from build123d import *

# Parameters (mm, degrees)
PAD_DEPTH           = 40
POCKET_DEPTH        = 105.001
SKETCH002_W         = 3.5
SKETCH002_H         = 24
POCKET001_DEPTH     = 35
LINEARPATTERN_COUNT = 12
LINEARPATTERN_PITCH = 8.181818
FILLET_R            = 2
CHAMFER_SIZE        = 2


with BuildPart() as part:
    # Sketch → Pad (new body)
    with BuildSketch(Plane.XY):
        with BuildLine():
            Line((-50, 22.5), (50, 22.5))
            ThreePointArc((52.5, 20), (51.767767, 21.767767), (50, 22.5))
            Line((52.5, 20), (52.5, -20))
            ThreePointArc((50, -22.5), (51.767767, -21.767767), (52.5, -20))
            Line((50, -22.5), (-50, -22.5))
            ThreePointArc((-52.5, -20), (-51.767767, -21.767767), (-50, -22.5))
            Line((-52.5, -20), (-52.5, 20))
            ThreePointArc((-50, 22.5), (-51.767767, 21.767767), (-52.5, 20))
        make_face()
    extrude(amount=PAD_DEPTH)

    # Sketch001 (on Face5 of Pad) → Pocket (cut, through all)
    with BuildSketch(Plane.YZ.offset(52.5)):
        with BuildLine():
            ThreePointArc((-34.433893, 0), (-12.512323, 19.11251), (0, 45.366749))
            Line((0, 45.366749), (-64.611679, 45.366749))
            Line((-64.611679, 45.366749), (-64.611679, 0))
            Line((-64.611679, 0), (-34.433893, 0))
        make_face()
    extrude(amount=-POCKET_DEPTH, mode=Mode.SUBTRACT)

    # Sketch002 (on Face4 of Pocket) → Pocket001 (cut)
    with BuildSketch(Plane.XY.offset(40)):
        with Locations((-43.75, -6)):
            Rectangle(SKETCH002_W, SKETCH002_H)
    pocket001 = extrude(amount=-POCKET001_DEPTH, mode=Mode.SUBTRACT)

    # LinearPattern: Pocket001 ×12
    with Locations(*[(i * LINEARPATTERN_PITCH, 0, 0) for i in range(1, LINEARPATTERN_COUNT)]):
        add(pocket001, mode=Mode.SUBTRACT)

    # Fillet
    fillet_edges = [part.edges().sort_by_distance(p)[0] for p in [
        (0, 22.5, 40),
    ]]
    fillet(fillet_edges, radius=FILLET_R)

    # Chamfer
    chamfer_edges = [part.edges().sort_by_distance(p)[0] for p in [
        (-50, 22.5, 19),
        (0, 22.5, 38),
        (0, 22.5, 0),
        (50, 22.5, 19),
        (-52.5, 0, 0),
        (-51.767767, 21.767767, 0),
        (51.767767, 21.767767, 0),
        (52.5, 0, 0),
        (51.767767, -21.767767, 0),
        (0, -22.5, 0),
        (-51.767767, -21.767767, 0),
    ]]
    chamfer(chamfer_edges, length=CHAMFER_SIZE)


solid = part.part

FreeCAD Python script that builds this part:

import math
import FreeCAD as App
import Part
import Sketcher
Q = App.Units.Quantity


def edges_at(feature, points):
    """Names of the edges that pass closest to the given points."""
    edges = feature.Shape.Edges
    near = lambda p: min(range(len(edges)), key=lambda i: edges[i].distToShape(Part.Vertex(*p))[0])
    return sorted({f"Edge{near(p) + 1}" for p in points})

doc = App.newDocument("Part")
body = doc.addObject("PartDesign::Body", "Body")

sketch1 = body.newObject("Sketcher::SketchObject", "Sketch")
sketch1.AttachmentSupport = (doc.getObject("XY_Plane"), [""])
sketch1.MapMode = "FlatFace"
sketch1.addGeometry([
    Part.LineSegment(App.Vector(50, 22.5, 0), App.Vector(-50, 22.5, 0)),
    Part.ArcOfCircle(Part.Circle(App.Vector(-50, 20, 0), App.Vector(0, 0, 1), 2.5), math.radians(90), math.radians(180)),
    Part.LineSegment(App.Vector(-52.5, 20, 0), App.Vector(-52.5, -20, 0)),
    Part.ArcOfCircle(Part.Circle(App.Vector(-50, -20, 0), App.Vector(0, 0, 1), 2.5), math.radians(180), math.radians(270)),
    Part.LineSegment(App.Vector(-50, -22.5, 0), App.Vector(50, -22.5, 0)),
    Part.ArcOfCircle(Part.Circle(App.Vector(50, -20, 0), App.Vector(0, 0, 1), 2.5), math.radians(-90), math.radians(0)),
    Part.LineSegment(App.Vector(52.5, -20, 0), App.Vector(52.5, 20, 0)),
    Part.ArcOfCircle(Part.Circle(App.Vector(50, 20, 0), App.Vector(0, 0, 1), 2.5), math.radians(0), math.radians(90)),
], False)
sketch1.addConstraint([
    Sketcher.Constraint("Tangent", 0, 2, 1, 1),
    Sketcher.Constraint("Tangent", 1, 2, 2, 1),
    Sketcher.Constraint("Tangent", 2, 2, 3, 1),
    Sketcher.Constraint("Tangent", 3, 2, 4, 1),
    Sketcher.Constraint("Tangent", 4, 2, 5, 1),
    Sketcher.Constraint("Tangent", 5, 2, 6, 1),
    Sketcher.Constraint("Tangent", 6, 2, 7, 1),
    Sketcher.Constraint("Tangent", 7, 2, 0, 1),
    Sketcher.Constraint("Horizontal", 0),
    Sketcher.Constraint("Vertical", 2),
    Sketcher.Constraint("Horizontal", 4),
    Sketcher.Constraint("Vertical", 6),
    Sketcher.Constraint("Equal", 1, 3),
    Sketcher.Constraint("Equal", 3, 5),
    Sketcher.Constraint("Equal", 5, 7),
    Sketcher.Constraint("Symmetric", 1, 3, 5, 3, -1, 1),
    Sketcher.Constraint("Radius", 1, Q("2.5 mm")),
    Sketcher.Constraint("DistanceX", 0, 2, 0, 1, Q("100 mm")),
    Sketcher.Constraint("DistanceY", 2, 2, 2, 1, Q("40 mm")),
])
pad1 = body.newObject("PartDesign::Pad", "Pad")
pad1.Profile = sketch1
pad1.Length = 40

sketch2 = body.newObject("Sketcher::SketchObject", "Sketch001")
sketch2.AttachmentSupport = (doc.getObject("YZ_Plane"), [""])
sketch2.MapMode = "FlatFace"
sketch2.AttachmentOffset = App.Placement(App.Vector(0, 0, 52.5), App.Rotation())
sketch2.addGeometry([
    Part.ArcOfCircle(Part.Circle(App.Vector(-70, 62, 0), App.Vector(0, 0, 1), 72), math.radians(-61), math.radians(-14)),
    Part.LineSegment(App.Vector(0, 45, 0), App.Vector(-65, 45, 0)),
    Part.LineSegment(App.Vector(-65, 45, 0), App.Vector(-65, 0, 0)),
    Part.LineSegment(App.Vector(-65, 0, 0), App.Vector(-34, 0, 0)),
], False)
sketch2.addConstraint([
    Sketcher.Constraint("Coincident", 0, 2, 1, 1),
    Sketcher.Constraint("Coincident", 1, 2, 2, 1),
    Sketcher.Constraint("Coincident", 2, 2, 3, 1),
    Sketcher.Constraint("Coincident", 3, 2, 0, 1),
    Sketcher.Constraint("Horizontal", 1),
    Sketcher.Constraint("Vertical", 2),
    Sketcher.Constraint("Horizontal", 3),
    Sketcher.Constraint("PointOnObject", 0, 2, -2),
    Sketcher.Constraint("PointOnObject", 2, 2, -1),
    Sketcher.Constraint("Radius", 0, Q("71.604994 mm")),
    Sketcher.Constraint("DistanceX", 1, 2, 1, 1, Q("64.611679 mm")),
    Sketcher.Constraint("DistanceY", 2, 2, 2, 1, Q("45.366749 mm")),
    Sketcher.Constraint("DistanceX", 3, 1, 3, 2, Q("30.177786 mm")),
])
pocket1 = body.newObject("PartDesign::Pocket", "Pocket")
pocket1.Profile = sketch2
pocket1.Type = "ThroughAll"

sketch3 = body.newObject("Sketcher::SketchObject", "Sketch002")
sketch3.AttachmentSupport = (doc.getObject("XY_Plane"), [""])
sketch3.MapMode = "FlatFace"
sketch3.AttachmentOffset = App.Placement(App.Vector(0, 0, 40), App.Rotation())
sketch3.addGeometry([
    Part.LineSegment(App.Vector(-45.5, 6, 0), App.Vector(-45.5, -18, 0)),
    Part.LineSegment(App.Vector(-45.5, -18, 0), App.Vector(-42, -18, 0)),
    Part.LineSegment(App.Vector(-42, -18, 0), App.Vector(-42, 6, 0)),
    Part.LineSegment(App.Vector(-42, 6, 0), App.Vector(-45.5, 6, 0)),
], False)
sketch3.addConstraint([
    Sketcher.Constraint("Coincident", 0, 2, 1, 1),
    Sketcher.Constraint("Coincident", 1, 2, 2, 1),
    Sketcher.Constraint("Coincident", 2, 2, 3, 1),
    Sketcher.Constraint("Coincident", 3, 2, 0, 1),
    Sketcher.Constraint("Vertical", 0),
    Sketcher.Constraint("Horizontal", 1),
    Sketcher.Constraint("Vertical", 2),
    Sketcher.Constraint("Horizontal", 3),
    Sketcher.Constraint("DistanceY", 0, 2, 0, 1, Q("24 mm")),
    Sketcher.Constraint("DistanceX", 1, 1, 1, 2, Q("3.5 mm")),
    Sketcher.Constraint("DistanceY", 0, 2, -1, 1, Q("18 mm")),
    Sketcher.Constraint("DistanceX", 1, 2, -1, 1, Q("42 mm")),
])
pocket2 = body.newObject("PartDesign::Pocket", "Pocket001")
pocket2.Profile = sketch3
pocket2.Length = 35
doc.recompute()

linearpattern = body.newObject("PartDesign::LinearPattern", "LinearPattern")
linearpattern.Originals = [pocket2]
linearpattern.Direction = (doc.getObject("X_Axis"), [""])
linearpattern.Mode = "offset"
linearpattern.Offset = 8.181818
linearpattern.Occurrences = 12
body.Tip = linearpattern
doc.recompute()

fillet = body.newObject("PartDesign::Fillet", "Fillet")
fillet.Base = (linearpattern, edges_at(linearpattern, [(0, 22.5, 40)]))
fillet.Radius = 2
doc.recompute()

chamfer = body.newObject("PartDesign::Chamfer", "Chamfer")
chamfer.Base = (fillet, edges_at(fillet, [
    (-50, 22.5, 19),
    (0, 22.5, 38),
    (0, 22.5, 0),
    (50, 22.5, 19),
    (-52.5, 0, 0),
    (-51.768, 21.768, 0),
    (51.768, 21.768, 0),
    (52.5, 0, 0),
    (51.768, -21.768, 0),
    (0, -22.5, 0),
    (-51.768, -21.768, 0),
]))
chamfer.Size = 2

doc.recompute()
